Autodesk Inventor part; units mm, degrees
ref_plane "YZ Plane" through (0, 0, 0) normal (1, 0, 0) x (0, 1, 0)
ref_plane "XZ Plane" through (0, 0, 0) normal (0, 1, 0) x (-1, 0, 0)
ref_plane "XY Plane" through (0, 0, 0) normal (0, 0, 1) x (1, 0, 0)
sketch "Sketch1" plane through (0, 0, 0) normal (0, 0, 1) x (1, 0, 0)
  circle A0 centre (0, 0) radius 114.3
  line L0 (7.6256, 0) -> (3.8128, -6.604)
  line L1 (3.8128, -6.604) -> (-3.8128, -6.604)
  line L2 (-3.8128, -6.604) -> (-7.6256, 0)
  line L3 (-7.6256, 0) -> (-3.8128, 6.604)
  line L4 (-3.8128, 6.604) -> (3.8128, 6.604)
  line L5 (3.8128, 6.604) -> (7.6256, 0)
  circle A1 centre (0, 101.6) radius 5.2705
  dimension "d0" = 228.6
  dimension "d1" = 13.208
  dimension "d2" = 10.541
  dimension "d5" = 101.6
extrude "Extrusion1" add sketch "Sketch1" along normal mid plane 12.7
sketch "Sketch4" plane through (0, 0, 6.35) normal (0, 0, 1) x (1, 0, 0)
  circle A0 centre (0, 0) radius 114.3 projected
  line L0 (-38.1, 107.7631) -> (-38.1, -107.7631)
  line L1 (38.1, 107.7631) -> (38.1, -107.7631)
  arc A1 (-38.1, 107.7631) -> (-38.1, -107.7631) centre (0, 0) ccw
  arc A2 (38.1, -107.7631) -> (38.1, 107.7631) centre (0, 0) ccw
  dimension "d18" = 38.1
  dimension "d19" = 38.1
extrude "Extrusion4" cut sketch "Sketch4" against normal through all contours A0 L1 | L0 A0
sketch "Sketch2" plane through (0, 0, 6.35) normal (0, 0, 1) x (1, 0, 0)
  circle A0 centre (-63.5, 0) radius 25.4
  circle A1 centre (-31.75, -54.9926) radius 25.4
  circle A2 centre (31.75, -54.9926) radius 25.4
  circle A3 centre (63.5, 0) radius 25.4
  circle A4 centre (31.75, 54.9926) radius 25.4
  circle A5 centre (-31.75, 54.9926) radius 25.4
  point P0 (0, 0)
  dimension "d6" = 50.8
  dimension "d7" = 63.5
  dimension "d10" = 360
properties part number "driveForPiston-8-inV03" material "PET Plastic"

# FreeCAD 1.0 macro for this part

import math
import FreeCAD as App
import Part
import Sketcher
Q = App.Units.Quantity

doc = App.newDocument("Part")
params = doc.addObject("Spreadsheet::Sheet", "Params")
for row, (alias, value) in enumerate([
    ("sketch1_diameter", "9 in"),
    ("sketch1_diameter2", "0.415 in"),
    ("pad1_length", "0.5 in"),
    ("sketch2_radius", "4.5 in"),
], start=1):
    params.set(f"A{row}", alias)
    params.set(f"B{row}", "=" + value)
    params.setAlias(f"B{row}", alias)

body = doc.addObject("PartDesign::Body", "Body")

# Sketch on XY plane
sketch1 = body.newObject("Sketcher::SketchObject", "Sketch")
sketch1.AttachmentSupport = (doc.getObject("XY_Plane"), [""])
sketch1.MapMode = "FlatFace"
sketch1.addGeometry([
    Part.Circle(App.Vector(0, 0, 0), App.Vector(0, 0, 1), 114),  # 0
    Part.LineSegment(App.Vector(4, 7, 0), App.Vector(8, 0, 0)),  # 1
    Part.LineSegment(App.Vector(8, 0, 0), App.Vector(4, -7, 0)),  # 2
    Part.LineSegment(App.Vector(4, -7, 0), App.Vector(-4, -7, 0)),  # 3
    Part.LineSegment(App.Vector(-4, -7, 0), App.Vector(-8, 0, 0)),  # 4
    Part.LineSegment(App.Vector(-8, 0, 0), App.Vector(-4, 7, 0)),  # 5
    Part.LineSegment(App.Vector(-4, 7, 0), App.Vector(4, 7, 0)),  # 6
    Part.Circle(App.Vector(0, 102, 0), App.Vector(0, 0, 1), 5),  # 7
], False)
sketch1.addConstraint([
    Sketcher.Constraint("Coincident", 1, 2, 2, 1),
    Sketcher.Constraint("Coincident", 2, 2, 3, 1),
    Sketcher.Constraint("Coincident", 3, 2, 4, 1),
    Sketcher.Constraint("Coincident", 4, 2, 5, 1),
    Sketcher.Constraint("Coincident", 5, 2, 6, 1),
    Sketcher.Constraint("Coincident", 6, 2, 1, 1),
    Sketcher.Constraint("Horizontal", 3),
    Sketcher.Constraint("Horizontal", 6),
    Sketcher.Constraint("Coincident", 0, 3, -1, 1),
    Sketcher.Constraint("Symmetric", 1, 2, 4, 2, -1, 1),
    Sketcher.Constraint("Symmetric", 2, 2, 5, 2, -1, 1),
    Sketcher.Constraint("PointOnObject", 7, 3, -2),
    Sketcher.Constraint("PointOnObject", 1, 2, -1),
    Sketcher.Constraint("Parallel", 1, 4),
    Sketcher.Constraint("Vertical", 3, 2, 5, 2),
    Sketcher.Constraint("Diameter", 0, Q("9 in")),
    Sketcher.Constraint("Diameter", 7, Q("0.415 in")),
    Sketcher.Constraint("DistanceY", -1, 1, 7, 3, Q("4 in")),
    Sketcher.Constraint("DistanceY", 3, 2, 5, 2, Q("0.52 in")),
    Sketcher.Constraint("Angle", 1, Q("-60.0001 deg")),
    Sketcher.Constraint("DistanceX", 3, 2, 3, 1, Q("7.6256 mm")),
])
sketch1.setExpression("Constraints[15]", "Params.sketch1_diameter")
sketch1.setExpression("Constraints[16]", "Params.sketch1_diameter2")
pad1 = body.newObject("PartDesign::Pad", "Pad")
pad1.Profile = sketch1
pad1.setExpression("Length", "Params.pad1_length")
pad1.Midplane = True

# Sketch on XY plane
sketch2 = body.newObject("Sketcher::SketchObject", "Sketch001")
sketch2.AttachmentSupport = (doc.getObject("XY_Plane"), [""])
sketch2.MapMode = "FlatFace"
sketch2.AttachmentOffset = App.Placement(App.Vector(0, 0, 0.25 * 25.4), App.Rotation())
sketch2.addGeometry([
    Part.ArcOfCircle(Part.Circle(App.Vector(0, 0, 0), App.Vector(0, 0, 1), 114), math.radians(-71), math.radians(71)),
    Part.LineSegment(App.Vector(38, -108, 0), App.Vector(38, 108, 0)),
    Part.LineSegment(App.Vector(-38, -108, 0), App.Vector(-38, 108, 0)),
    Part.ArcOfCircle(Part.Circle(App.Vector(0, 0, 0), App.Vector(0, 0, 1), 114), math.radians(109), math.radians(251)),
], False)
sketch2.addConstraint([
    Sketcher.Constraint("Coincident", 0, 1, 1, 1),
    Sketcher.Constraint("Coincident", 1, 2, 0, 2),
    Sketcher.Constraint("Coincident", 2, 1, 3, 2),
    Sketcher.Constraint("Coincident", 3, 1, 2, 2),
    Sketcher.Constraint("Vertical", 1),
    Sketcher.Constraint("Vertical", 2),
    Sketcher.Constraint("Coincident", 0, 3, -1, 1),
    Sketcher.Constraint("Coincident", 3, 3, -1, 1),
    Sketcher.Constraint("Equal", 0, 3),
    Sketcher.Constraint("Horizontal", 0, 1, 2, 1),
    Sketcher.Constraint("DistanceX", -1, 1, 0, 1, Q("1.5 in")),
    Sketcher.Constraint("Radius", 0, Q("4.5 in")),
])
sketch2.setExpression("Constraints[11]", "Params.sketch2_radius")
pocket1 = body.newObject("PartDesign::Pocket", "Pocket")
pocket1.Profile = sketch2
pocket1.Type = "ThroughAll"

doc.recompute()
